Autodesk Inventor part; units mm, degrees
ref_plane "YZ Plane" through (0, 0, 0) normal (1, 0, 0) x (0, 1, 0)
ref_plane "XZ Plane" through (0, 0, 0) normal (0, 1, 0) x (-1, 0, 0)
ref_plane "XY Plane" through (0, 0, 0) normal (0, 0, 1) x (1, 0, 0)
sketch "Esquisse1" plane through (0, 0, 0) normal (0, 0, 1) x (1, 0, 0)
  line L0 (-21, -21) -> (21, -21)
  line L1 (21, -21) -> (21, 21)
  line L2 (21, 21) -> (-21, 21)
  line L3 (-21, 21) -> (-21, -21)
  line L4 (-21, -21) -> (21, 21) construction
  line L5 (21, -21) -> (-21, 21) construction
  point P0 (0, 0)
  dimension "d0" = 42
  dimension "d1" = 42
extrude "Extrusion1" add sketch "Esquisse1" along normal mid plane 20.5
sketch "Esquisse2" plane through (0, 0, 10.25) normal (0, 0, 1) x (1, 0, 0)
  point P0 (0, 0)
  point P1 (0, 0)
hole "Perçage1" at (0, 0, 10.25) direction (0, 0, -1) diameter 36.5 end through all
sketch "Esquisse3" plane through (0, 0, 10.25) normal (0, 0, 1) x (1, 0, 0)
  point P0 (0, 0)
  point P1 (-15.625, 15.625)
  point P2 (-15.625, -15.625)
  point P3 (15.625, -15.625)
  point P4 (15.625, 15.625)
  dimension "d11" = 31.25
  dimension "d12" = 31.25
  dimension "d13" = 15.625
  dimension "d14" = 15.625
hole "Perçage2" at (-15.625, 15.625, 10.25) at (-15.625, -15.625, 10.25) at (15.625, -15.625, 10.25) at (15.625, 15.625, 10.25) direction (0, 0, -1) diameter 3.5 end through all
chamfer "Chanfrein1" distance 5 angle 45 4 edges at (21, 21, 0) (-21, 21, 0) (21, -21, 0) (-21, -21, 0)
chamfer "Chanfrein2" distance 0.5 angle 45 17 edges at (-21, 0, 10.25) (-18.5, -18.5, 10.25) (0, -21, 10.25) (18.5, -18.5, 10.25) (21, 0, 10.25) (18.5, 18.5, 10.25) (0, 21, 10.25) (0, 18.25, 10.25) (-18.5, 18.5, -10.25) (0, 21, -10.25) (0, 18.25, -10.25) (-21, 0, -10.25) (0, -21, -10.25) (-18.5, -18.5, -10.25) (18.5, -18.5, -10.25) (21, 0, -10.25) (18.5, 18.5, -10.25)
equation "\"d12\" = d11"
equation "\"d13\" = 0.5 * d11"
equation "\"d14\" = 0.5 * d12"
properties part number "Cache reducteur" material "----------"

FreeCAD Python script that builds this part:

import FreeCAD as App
import Part
import Sketcher
from FreeCAD import Vector


def edges_at(feature, points):
    """Names of the edges that pass closest to the given points."""
    edges = feature.Shape.Edges
    near = lambda p: min(range(len(edges)), key=lambda i: edges[i].distToShape(Part.Vertex(*p))[0])
    return sorted({f"Edge{near(p) + 1}" for p in points})


def add_polygon(sketch, points):
    """Adds a closed chain of lines whose ends are joined by coincident constraints."""
    first, n = sketch.GeometryCount, len(points)
    for a, b in zip(points, points[1:] + points[:1]):
        sketch.addGeometry(Part.LineSegment(App.Vector(*a, 0), App.Vector(*b, 0)), False)
    for i in range(n):
        sketch.addConstraint(Sketcher.Constraint("Coincident", first + i, 2, first + (i + 1) % n, 1))

doc = App.newDocument("Part")
body = doc.addObject("PartDesign::Body", "Body")

# Sketch on XY plane
sketch1 = doc.addObject("Sketcher::SketchObject", "Sketch")
body.addObject(sketch1)
sketch1.AttachmentSupport = (doc.XY_Plane, [""])
sketch1.MapMode = "FlatFace"
add_polygon(sketch1, [(-21, 21), (-21, -21), (21, -21), (21, 21)])  # lines 0-3
sketch1.addConstraint([
    Sketcher.Constraint("Vertical", 0),
    Sketcher.Constraint("Horizontal", 1),
    Sketcher.Constraint("Vertical", 2),
    Sketcher.Constraint("Horizontal", 3),
    Sketcher.Constraint("Symmetric", 0, 2, 2, 2, -1, 1),
    Sketcher.Constraint("Equal", 3, 0),
    Sketcher.Constraint("DistanceX", 1, 1, 1, 2, 42.0),
])
pad1 = doc.addObject("PartDesign::Pad", "Pad")
body.addObject(pad1)
pad1.Profile = sketch1
pad1.Length = 20.5
pad1.Midplane = True

# Sketch on XY plane
sketch2 = doc.addObject("Sketcher::SketchObject", "Sketch001")
body.addObject(sketch2)
sketch2.AttachmentSupport = (doc.XY_Plane, [""])
sketch2.MapMode = "FlatFace"
sketch2.AttachmentOffset = App.Placement(Vector(0, 0, 10.25), App.Rotation())
sketch2.addGeometry(Part.Circle(Vector(0, 0, 0), Vector(0, 0, 1), 18), False)
sketch2.addConstraint([
    Sketcher.Constraint("Coincident", 0, 3, -1, 1),
    Sketcher.Constraint("Diameter", 0, 36.5),
])
doc.recompute()
hole = doc.addObject("PartDesign::Hole", "Hole")
body.addObject(hole)
hole.Profile = sketch2
hole.ThreadType = "None"
hole.Diameter = 36.5
hole.DepthType = "ThroughAll"

# Sketch on XY plane
sketch3 = doc.addObject("Sketcher::SketchObject", "Sketch002")
body.addObject(sketch3)
sketch3.AttachmentSupport = (doc.XY_Plane, [""])
sketch3.MapMode = "FlatFace"
sketch3.AttachmentOffset = App.Placement(Vector(0, 0, 10.25), App.Rotation())
sketch3.addGeometry([
    Part.Circle(Vector(-15.6, 15.6, 0), Vector(0, 0, 1), 1.8),
    Part.Circle(Vector(-15.6, -15.6, 0), Vector(0, 0, 1), 1.8),
    Part.Circle(Vector(15.6, -15.6, 0), Vector(0, 0, 1), 1.8),
    Part.Circle(Vector(15.6, 15.6, 0), Vector(0, 0, 1), 1.8),
], False)
sketch3.addConstraint([
    Sketcher.Constraint("Equal", 0, 1),
    Sketcher.Constraint("Equal", 1, 2),
    Sketcher.Constraint("Equal", 2, 3),
    Sketcher.Constraint("Symmetric", 0, 3, 2, 3, -1, 1),
    Sketcher.Constraint("Symmetric", 1, 3, 3, 3, -1, 1),
    Sketcher.Constraint("Symmetric", 1, 3, 2, 3, -2),
    Sketcher.Constraint("Diameter", 0, 3.5),
    Sketcher.Constraint("DistanceY", 1, 3, 0, 3, 31.25),
    Sketcher.Constraint("DistanceX", 1, 3, 2, 3, 31.25),
])
doc.recompute()
hole2 = doc.addObject("PartDesign::Hole", "Hole001")
body.addObject(hole2)
hole2.Profile = sketch3
hole2.ThreadType = "None"
hole2.Diameter = 3.5
hole2.DepthType = "ThroughAll"
doc.recompute()

chamfer = doc.addObject("PartDesign::Chamfer", "Chamfer")
body.addObject(chamfer)
chamfer.Base = (hole2, edges_at(hole2, [
    (21, 21, 0),
    (-21, 21, 0),
    (21, -21, 0),
    (-21, -21, 0),
]))
chamfer.Size = 5
doc.recompute()

chamfer2 = doc.addObject("PartDesign::Chamfer", "Chamfer001")
body.addObject(chamfer2)
chamfer2.Base = (chamfer, edges_at(chamfer, [
    (-21, 0, 10.25),
    (-18.5, -18.5, 10.25),
    (0, -21, 10.25),
    (18.5, -18.5, 10.25),
    (21, 0, 10.25),
    (18.5, 18.5, 10.25),
    (0, 21, 10.25),
    (0, 18.25, 10.25),
    (-18.5, 18.5, -10.25),
    (0, 21, -10.25),
    (0, 18.25, -10.25),
    (-21, 0, -10.25),
    (0, -21, -10.25),
    (-18.5, -18.5, -10.25),
    (18.5, -18.5, -10.25),
    (21, 0, -10.25),
    (18.5, 18.5, -10.25),
]))
chamfer2.Size = 0.5

doc.recompute()
